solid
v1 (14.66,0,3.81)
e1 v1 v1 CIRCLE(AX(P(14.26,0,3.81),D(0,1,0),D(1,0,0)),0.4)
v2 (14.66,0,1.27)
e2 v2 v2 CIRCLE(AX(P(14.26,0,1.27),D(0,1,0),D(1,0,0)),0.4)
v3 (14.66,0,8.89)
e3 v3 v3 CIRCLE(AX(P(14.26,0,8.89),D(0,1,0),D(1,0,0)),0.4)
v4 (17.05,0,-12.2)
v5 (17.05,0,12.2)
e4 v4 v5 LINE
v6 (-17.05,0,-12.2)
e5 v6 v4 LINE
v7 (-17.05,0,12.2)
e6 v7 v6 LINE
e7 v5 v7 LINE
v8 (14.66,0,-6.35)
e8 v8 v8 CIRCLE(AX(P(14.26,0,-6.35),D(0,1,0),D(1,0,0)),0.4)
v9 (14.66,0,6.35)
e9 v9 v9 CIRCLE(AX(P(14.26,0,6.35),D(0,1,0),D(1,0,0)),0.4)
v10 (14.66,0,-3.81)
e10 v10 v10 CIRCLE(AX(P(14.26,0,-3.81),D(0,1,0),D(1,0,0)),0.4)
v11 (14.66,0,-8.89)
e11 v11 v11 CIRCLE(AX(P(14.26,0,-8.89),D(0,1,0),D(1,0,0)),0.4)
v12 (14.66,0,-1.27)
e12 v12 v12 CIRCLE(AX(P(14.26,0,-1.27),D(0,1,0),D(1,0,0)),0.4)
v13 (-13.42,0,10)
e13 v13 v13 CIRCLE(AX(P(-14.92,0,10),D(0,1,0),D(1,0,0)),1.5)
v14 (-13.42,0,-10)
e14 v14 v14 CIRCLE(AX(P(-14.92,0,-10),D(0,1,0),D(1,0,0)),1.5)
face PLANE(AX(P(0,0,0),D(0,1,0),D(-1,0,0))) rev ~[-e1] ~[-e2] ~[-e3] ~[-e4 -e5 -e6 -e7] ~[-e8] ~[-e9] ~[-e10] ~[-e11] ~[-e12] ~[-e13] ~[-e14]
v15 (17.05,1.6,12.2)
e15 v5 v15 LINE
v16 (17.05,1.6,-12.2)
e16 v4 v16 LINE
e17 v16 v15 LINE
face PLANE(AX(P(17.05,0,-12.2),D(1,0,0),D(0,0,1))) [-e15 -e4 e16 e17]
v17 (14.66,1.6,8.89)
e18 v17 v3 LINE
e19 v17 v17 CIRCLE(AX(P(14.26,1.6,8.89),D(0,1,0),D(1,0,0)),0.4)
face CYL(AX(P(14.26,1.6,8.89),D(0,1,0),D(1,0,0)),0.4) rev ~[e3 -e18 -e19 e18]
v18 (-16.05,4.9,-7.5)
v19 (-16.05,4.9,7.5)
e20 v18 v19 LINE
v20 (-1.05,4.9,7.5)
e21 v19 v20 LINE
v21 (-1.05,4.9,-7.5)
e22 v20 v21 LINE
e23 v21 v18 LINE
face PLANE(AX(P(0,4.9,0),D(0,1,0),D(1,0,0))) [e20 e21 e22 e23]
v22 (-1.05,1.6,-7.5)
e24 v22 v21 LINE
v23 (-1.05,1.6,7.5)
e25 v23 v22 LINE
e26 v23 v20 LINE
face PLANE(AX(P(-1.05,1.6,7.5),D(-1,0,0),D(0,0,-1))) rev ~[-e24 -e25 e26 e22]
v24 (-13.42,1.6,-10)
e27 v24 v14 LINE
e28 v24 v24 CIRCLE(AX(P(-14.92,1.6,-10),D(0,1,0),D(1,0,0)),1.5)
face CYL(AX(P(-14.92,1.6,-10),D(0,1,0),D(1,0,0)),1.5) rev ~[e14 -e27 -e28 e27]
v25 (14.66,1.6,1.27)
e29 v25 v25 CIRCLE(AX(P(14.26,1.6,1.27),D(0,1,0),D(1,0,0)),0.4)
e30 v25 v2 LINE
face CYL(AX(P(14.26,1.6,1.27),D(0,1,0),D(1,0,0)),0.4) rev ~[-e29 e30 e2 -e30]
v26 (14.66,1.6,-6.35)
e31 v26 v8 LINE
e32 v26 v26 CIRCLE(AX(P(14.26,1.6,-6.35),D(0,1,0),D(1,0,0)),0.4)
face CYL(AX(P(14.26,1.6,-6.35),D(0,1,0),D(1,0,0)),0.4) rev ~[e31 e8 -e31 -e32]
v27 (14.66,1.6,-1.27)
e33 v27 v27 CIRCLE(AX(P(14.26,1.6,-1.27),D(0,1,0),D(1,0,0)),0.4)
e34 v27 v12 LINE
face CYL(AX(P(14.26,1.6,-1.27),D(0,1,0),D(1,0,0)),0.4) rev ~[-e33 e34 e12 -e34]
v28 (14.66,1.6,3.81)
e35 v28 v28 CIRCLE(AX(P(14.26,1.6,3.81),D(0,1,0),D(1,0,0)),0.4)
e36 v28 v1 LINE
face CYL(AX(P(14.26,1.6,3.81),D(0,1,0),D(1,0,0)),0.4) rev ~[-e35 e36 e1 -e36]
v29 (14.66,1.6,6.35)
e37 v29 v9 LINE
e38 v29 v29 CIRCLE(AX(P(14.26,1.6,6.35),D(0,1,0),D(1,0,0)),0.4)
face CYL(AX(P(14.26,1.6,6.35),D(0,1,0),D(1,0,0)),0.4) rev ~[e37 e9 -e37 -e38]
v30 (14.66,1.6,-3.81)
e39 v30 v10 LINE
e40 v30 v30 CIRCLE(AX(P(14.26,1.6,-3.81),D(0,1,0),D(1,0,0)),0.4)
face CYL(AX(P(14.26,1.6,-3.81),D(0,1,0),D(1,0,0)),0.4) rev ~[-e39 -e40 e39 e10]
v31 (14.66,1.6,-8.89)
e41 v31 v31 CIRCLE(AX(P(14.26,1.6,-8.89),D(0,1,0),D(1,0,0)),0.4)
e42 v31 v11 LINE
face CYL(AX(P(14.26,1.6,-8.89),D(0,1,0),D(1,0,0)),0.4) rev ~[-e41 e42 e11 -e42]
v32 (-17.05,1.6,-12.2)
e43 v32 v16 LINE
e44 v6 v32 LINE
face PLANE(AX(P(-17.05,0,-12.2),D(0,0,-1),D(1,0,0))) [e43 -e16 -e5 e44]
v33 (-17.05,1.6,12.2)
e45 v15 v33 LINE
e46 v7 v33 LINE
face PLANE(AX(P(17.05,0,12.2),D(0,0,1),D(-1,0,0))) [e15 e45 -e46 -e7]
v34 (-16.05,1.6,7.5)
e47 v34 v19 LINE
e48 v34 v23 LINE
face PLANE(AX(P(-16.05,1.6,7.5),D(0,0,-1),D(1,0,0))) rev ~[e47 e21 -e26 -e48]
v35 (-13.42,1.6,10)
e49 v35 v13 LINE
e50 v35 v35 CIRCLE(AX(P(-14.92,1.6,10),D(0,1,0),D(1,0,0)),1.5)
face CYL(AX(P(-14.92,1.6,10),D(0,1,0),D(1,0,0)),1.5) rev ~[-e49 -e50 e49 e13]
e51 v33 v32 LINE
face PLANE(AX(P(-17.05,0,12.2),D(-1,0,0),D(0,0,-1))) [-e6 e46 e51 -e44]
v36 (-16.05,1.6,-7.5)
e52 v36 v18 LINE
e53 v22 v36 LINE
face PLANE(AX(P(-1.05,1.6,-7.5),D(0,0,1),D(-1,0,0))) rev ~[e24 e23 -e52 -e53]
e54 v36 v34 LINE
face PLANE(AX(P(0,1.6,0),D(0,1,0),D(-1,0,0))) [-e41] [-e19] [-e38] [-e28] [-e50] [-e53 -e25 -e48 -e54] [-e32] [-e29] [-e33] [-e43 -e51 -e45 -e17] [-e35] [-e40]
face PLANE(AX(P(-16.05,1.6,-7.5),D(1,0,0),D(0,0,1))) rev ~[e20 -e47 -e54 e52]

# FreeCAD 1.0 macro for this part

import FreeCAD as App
import Part
import Sketcher
Q = App.Units.Quantity


def add_polygon(sketch, points):
    """Adds a closed chain of lines whose ends are joined by coincident constraints."""
    first, n = sketch.GeometryCount, len(points)
    for a, b in zip(points, points[1:] + points[:1]):
        sketch.addGeometry(Part.LineSegment(App.Vector(*a, 0), App.Vector(*b, 0)), False)
    for i in range(n):
        sketch.addConstraint(Sketcher.Constraint("Coincident", first + i, 2, first + (i + 1) % n, 1))

doc = App.newDocument("Part")
body = doc.addObject("PartDesign::Body", "Body")

# Sketch on XZ plane
sketch1 = body.newObject("Sketcher::SketchObject", "Sketch")
sketch1.AttachmentSupport = (doc.getObject("XZ_Plane"), [""])
sketch1.MapMode = "FlatFace"
add_polygon(sketch1, [(-17.05, 12.2), (17.05, 12.2), (17.05, -12.2), (-17.05, -12.2)])  # lines 0-3
sketch1.addConstraint(Sketcher.Constraint("Horizontal", 0))
sketch1.addConstraint(Sketcher.Constraint("Vertical", 1))
sketch1.addConstraint(Sketcher.Constraint("Horizontal", 2))
sketch1.addConstraint(Sketcher.Constraint("Vertical", 3))
sketch1.addConstraint(Sketcher.Constraint("Symmetric", 0, 2, 2, 2, -1, 1))
sketch1.addConstraint(Sketcher.Constraint("DistanceX", 0, 1, 0, 2, Q("34.1 mm")))
sketch1.addConstraint(Sketcher.Constraint("DistanceY", 1, 2, 1, 1, Q("24.4 mm")))
pad1 = body.newObject("PartDesign::Pad", "Pad")
pad1.Profile = sketch1
pad1.Length = 1.6
pad1.Reversed = True

# Sketch on XZ plane
sketch2 = body.newObject("Sketcher::SketchObject", "Sketch001")
sketch2.AttachmentSupport = (doc.getObject("XZ_Plane"), [""])
sketch2.MapMode = "FlatFace"
sketch2.AttachmentOffset = App.Placement(App.Vector(0, 0, -1.6), App.Rotation())
sketch2.addGeometry(Part.Circle(App.Vector(-14.92, 10, 0), App.Vector(0, 0, 1), 1.5), False)
sketch2.addGeometry(Part.Circle(App.Vector(-14.92, -10, 0), App.Vector(0, 0, 1), 1.5), False)
sketch2.addGeometry(Part.Circle(App.Vector(14.26, 6.35, 0), App.Vector(0, 0, 1), 0.4), False)
sketch2.addGeometry(Part.Circle(App.Vector(14.26, 3.81, 0), App.Vector(0, 0, 1), 0.4), False)
sketch2.addGeometry(Part.Circle(App.Vector(14.26, 1.27, 0), App.Vector(0, 0, 1), 0.4), False)
sketch2.addGeometry(Part.Circle(App.Vector(14.26, 8.89, 0), App.Vector(0, 0, 1), 0.4), False)
sketch2.addGeometry(Part.Circle(App.Vector(14.26, -1.27, 0), App.Vector(0, 0, 1), 0.4), False)
sketch2.addGeometry(Part.Circle(App.Vector(14.26, -3.81, 0), App.Vector(0, 0, 1), 0.4), False)
sketch2.addGeometry(Part.Circle(App.Vector(14.26, -6.35, 0), App.Vector(0, 0, 1), 0.4), False)
sketch2.addGeometry(Part.Circle(App.Vector(14.26, -8.89, 0), App.Vector(0, 0, 1), 0.4), False)
sketch2.addConstraint(Sketcher.Constraint("Equal", 0, 1))
sketch2.addConstraint(Sketcher.Constraint("Equal", 2, 3))
sketch2.addConstraint(Sketcher.Constraint("Equal", 3, 4))
sketch2.addConstraint(Sketcher.Constraint("Equal", 4, 5))
sketch2.addConstraint(Sketcher.Constraint("Equal", 5, 6))
sketch2.addConstraint(Sketcher.Constraint("Equal", 6, 7))
sketch2.addConstraint(Sketcher.Constraint("Equal", 7, 8))
sketch2.addConstraint(Sketcher.Constraint("Equal", 8, 9))
sketch2.addConstraint(Sketcher.Constraint("Symmetric", 0, 3, 1, 3, -1))
sketch2.addConstraint(Sketcher.Constraint("Symmetric", 4, 3, 6, 3, -1))
sketch2.addConstraint(Sketcher.Constraint("Symmetric", 3, 3, 7, 3, -1))
sketch2.addConstraint(Sketcher.Constraint("Symmetric", 2, 3, 8, 3, -1))
sketch2.addConstraint(Sketcher.Constraint("Symmetric", 5, 3, 9, 3, -1))
sketch2.addConstraint(Sketcher.Constraint("Vertical", 2, 3, 3, 3))
sketch2.addConstraint(Sketcher.Constraint("Vertical", 3, 3, 4, 3))
sketch2.addConstraint(Sketcher.Constraint("Vertical", 4, 3, 5, 3))
sketch2.addConstraint(Sketcher.Constraint("Diameter", 0, Q("3 mm")))
sketch2.addConstraint(Sketcher.Constraint("Diameter", 2, Q("0.8 mm")))
sketch2.addConstraint(Sketcher.Constraint("DistanceY", 3, 3, 2, 3, Q("2.54 mm")))
sketch2.addConstraint(Sketcher.Constraint("DistanceY", 4, 3, 3, 3, Q("2.54 mm")))
sketch2.addConstraint(Sketcher.Constraint("DistanceY", 2, 3, 5, 3, Q("2.54 mm")))
sketch2.addConstraint(Sketcher.Constraint("DistanceY", 6, 3, 4, 3, Q("2.54 mm")))
sketch2.addConstraint(Sketcher.Constraint("DistanceY", -1, 1, 0, 3, Q("10 mm")))
sketch2.addConstraint(Sketcher.Constraint("DistanceX", 0, 3, -1, 1, Q("14.92 mm")))
sketch2.addConstraint(Sketcher.Constraint("DistanceX", -1, 1, 2, 3, Q("14.26 mm")))
pocket1 = body.newObject("PartDesign::Pocket", "Pocket")
pocket1.Profile = sketch2
pocket1.Length = 3.31
pocket1.Reversed = True

# Sketch on XZ plane
sketch3 = body.newObject("Sketcher::SketchObject", "Sketch002")
sketch3.AttachmentSupport = (doc.getObject("XZ_Plane"), [""])
sketch3.MapMode = "FlatFace"
sketch3.AttachmentOffset = App.Placement(App.Vector(0, 0, -1.6), App.Rotation())
add_polygon(sketch3, [(-16.05, -7.5), (-16.05, 7.5), (-1.05, 7.5), (-1.05, -7.5)])  # lines 0-3
sketch3.addConstraint(Sketcher.Constraint("Vertical", 0))
sketch3.addConstraint(Sketcher.Constraint("Horizontal", 1))
sketch3.addConstraint(Sketcher.Constraint("Vertical", 2))
sketch3.addConstraint(Sketcher.Constraint("Horizontal", 3))
sketch3.addConstraint(Sketcher.Constraint("Equal", 3, 0))
sketch3.addConstraint(Sketcher.Constraint("DistanceX", 1, 1, 1, 2, Q("15 mm")))
sketch3.addConstraint(Sketcher.Constraint("DistanceY", -1, 1, 0, 2, Q("7.5 mm")))
sketch3.addConstraint(Sketcher.Constraint("DistanceX", 0, 2, -1, 1, Q("16.05 mm")))
pad2 = body.newObject("PartDesign::Pad", "Pad001")
pad2.Profile = sketch3
pad2.Length = 3.3
pad2.Reversed = True

doc.recompute()
